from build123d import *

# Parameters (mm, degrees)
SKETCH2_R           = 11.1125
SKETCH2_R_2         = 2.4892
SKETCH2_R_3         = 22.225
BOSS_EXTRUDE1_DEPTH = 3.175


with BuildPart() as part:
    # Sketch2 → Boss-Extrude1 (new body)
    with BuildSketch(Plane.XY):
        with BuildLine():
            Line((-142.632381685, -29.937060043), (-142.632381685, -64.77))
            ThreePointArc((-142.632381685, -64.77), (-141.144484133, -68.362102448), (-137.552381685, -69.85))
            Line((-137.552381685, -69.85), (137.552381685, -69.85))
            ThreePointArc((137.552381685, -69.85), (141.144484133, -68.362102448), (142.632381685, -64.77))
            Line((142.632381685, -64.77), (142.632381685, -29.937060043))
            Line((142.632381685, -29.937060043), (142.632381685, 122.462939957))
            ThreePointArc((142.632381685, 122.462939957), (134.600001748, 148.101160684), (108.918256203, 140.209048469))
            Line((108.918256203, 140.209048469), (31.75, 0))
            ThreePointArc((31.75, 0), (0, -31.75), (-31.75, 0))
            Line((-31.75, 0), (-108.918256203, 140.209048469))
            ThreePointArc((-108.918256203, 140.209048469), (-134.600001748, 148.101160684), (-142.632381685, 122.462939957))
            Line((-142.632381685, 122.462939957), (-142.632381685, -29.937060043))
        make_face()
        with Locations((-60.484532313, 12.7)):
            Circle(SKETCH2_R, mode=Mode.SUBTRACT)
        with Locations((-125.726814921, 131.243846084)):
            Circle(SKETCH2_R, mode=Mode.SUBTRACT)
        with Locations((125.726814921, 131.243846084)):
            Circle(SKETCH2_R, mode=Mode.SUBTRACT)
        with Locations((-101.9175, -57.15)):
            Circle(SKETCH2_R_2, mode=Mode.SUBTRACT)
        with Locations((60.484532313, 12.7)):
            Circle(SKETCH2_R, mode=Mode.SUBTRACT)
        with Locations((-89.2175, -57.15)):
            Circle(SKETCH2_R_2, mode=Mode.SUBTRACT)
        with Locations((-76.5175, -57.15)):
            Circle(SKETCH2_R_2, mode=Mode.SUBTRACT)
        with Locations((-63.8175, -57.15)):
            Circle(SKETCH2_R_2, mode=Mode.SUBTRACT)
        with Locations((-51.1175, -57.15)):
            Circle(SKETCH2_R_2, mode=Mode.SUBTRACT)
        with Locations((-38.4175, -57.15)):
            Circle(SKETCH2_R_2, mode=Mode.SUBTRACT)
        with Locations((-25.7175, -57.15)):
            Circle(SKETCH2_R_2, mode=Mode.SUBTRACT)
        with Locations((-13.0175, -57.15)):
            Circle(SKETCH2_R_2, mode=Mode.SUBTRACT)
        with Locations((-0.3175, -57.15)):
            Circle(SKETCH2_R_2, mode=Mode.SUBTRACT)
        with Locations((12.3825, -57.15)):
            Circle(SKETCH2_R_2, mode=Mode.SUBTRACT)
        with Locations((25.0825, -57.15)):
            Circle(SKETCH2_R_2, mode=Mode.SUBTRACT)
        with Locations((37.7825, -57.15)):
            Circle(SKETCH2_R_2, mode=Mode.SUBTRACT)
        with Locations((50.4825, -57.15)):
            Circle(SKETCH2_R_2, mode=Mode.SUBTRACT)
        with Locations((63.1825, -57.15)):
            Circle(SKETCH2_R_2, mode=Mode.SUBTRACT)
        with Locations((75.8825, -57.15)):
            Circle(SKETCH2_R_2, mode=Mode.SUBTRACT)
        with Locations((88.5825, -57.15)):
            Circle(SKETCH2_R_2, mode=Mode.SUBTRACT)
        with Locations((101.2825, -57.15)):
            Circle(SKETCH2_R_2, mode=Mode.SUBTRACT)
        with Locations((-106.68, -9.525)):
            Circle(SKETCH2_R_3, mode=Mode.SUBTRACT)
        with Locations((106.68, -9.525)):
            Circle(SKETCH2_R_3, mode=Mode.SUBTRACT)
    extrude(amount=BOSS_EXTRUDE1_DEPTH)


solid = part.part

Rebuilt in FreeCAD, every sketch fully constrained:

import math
import FreeCAD as App
import Part
import Sketcher
from FreeCAD import Vector
Q = App.Units.Quantity

doc = App.newDocument("Part")
body = doc.addObject("PartDesign::Body", "Body")

# Sketch on XY plane
sketch1 = body.newObject("Sketcher::SketchObject", "Sketch")
sketch1.AttachmentSupport = (doc.getObject("XY_Plane"), [""])
sketch1.MapMode = "FlatFace"
sketch1.addGeometry(Part.ArcOfCircle(Part.Circle(Vector(-137.6, -64.8, 0), Vector(0, 0, 1), 5.1), math.radians(-180), math.radians(-90)), False)
sketch1.addGeometry(Part.LineSegment(Vector(-137.6, -69.8, 0), Vector(137.6, -69.8, 0)), False)
sketch1.addGeometry(Part.ArcOfCircle(Part.Circle(Vector(137.6, -64.8, 0), Vector(0, 0, 1), 5.1), math.radians(-90), math.radians(0)), False)
sketch1.addGeometry(Part.LineSegment(Vector(142.6, -64.8, 0), Vector(142.6, 122.5, 0)), False)
sketch1.addGeometry(Part.ArcOfCircle(Part.Circle(Vector(125.7, 131.2, 0), Vector(0, 0, 1), 19.1), math.radians(-27), math.radians(152)), False)
sketch1.addGeometry(Part.LineSegment(Vector(108.9, 140.2, 0), Vector(31.8, 0, 0)), False)
sketch1.addGeometry(Part.ArcOfCircle(Part.Circle(Vector(0, 0, 0), Vector(0, 0, 1), 31.8), math.radians(180), math.radians(360)), False)
sketch1.addGeometry(Part.LineSegment(Vector(-31.8, 0, 0), Vector(-108.9, 140.2, 0)), False)
sketch1.addGeometry(Part.ArcOfCircle(Part.Circle(Vector(-125.7, 131.2, 0), Vector(0, 0, 1), 19.1), math.radians(28), math.radians(207)), False)
sketch1.addGeometry(Part.LineSegment(Vector(-142.6, 122.5, 0), Vector(-142.6, -64.8, 0)), False)
sketch1.addGeometry(Part.Circle(Vector(-101.9, -57.1, 0), Vector(0, 0, 1), 2.5), False)
sketch1.addGeometry(Part.Circle(Vector(-89.2, -57.1, 0), Vector(0, 0, 1), 2.5), False)
sketch1.addGeometry(Part.Circle(Vector(-76.5, -57.1, 0), Vector(0, 0, 1), 2.5), False)
sketch1.addGeometry(Part.Circle(Vector(-106.7, -9.5, 0), Vector(0, 0, 1), 22.2), False)
sketch1.addGeometry(Part.Circle(Vector(-63.8, -57.1, 0), Vector(0, 0, 1), 2.5), False)
sketch1.addGeometry(Part.Circle(Vector(-51.1, -57.1, 0), Vector(0, 0, 1), 2.5), False)
sketch1.addGeometry(Part.Circle(Vector(-38.4, -57.1, 0), Vector(0, 0, 1), 2.5), False)
sketch1.addGeometry(Part.Circle(Vector(-25.7, -57.1, 0), Vector(0, 0, 1), 2.5), False)
sketch1.addGeometry(Part.Circle(Vector(-13, -57.1, 0), Vector(0, 0, 1), 2.5), False)
sketch1.addGeometry(Part.Circle(Vector(-0.3, -57.1, 0), Vector(0, 0, 1), 2.5), False)
sketch1.addGeometry(Part.Circle(Vector(-60.5, 12.7, 0), Vector(0, 0, 1), 11.1), False)
sketch1.addGeometry(Part.Circle(Vector(12.4, -57.1, 0), Vector(0, 0, 1), 2.5), False)
sketch1.addGeometry(Part.Circle(Vector(25.1, -57.1, 0), Vector(0, 0, 1), 2.5), False)
sketch1.addGeometry(Part.Circle(Vector(37.8, -57.1, 0), Vector(0, 0, 1), 2.5), False)
sketch1.addGeometry(Part.Circle(Vector(50.5, -57.1, 0), Vector(0, 0, 1), 2.5), False)
sketch1.addGeometry(Part.Circle(Vector(63.2, -57.1, 0), Vector(0, 0, 1), 2.5), False)
sketch1.addGeometry(Part.Circle(Vector(75.9, -57.1, 0), Vector(0, 0, 1), 2.5), False)
sketch1.addGeometry(Part.Circle(Vector(88.6, -57.1, 0), Vector(0, 0, 1), 2.5), False)
sketch1.addGeometry(Part.Circle(Vector(101.3, -57.1, 0), Vector(0, 0, 1), 2.5), False)
sketch1.addGeometry(Part.Circle(Vector(106.7, -9.5, 0), Vector(0, 0, 1), 22.2), False)
sketch1.addGeometry(Part.Circle(Vector(60.5, 12.7, 0), Vector(0, 0, 1), 11.1), False)
sketch1.addGeometry(Part.Circle(Vector(-125.7, 131.2, 0), Vector(0, 0, 1), 11.1), False)
sketch1.addGeometry(Part.Circle(Vector(125.7, 131.2, 0), Vector(0, 0, 1), 11.1), False)
sketch1.addConstraint(Sketcher.Constraint("Tangent", 0, 2, 1, 1))
sketch1.addConstraint(Sketcher.Constraint("Tangent", 1, 2, 2, 1))
sketch1.addConstraint(Sketcher.Constraint("Tangent", 2, 2, 3, 1))
sketch1.addConstraint(Sketcher.Constraint("Coincident", 3, 2, 4, 1))
sketch1.addConstraint(Sketcher.Constraint("Coincident", 4, 2, 5, 1))
sketch1.addConstraint(Sketcher.Constraint("Coincident", 5, 2, 6, 2))
sketch1.addConstraint(Sketcher.Constraint("Coincident", 6, 1, 7, 1))
sketch1.addConstraint(Sketcher.Constraint("Coincident", 7, 2, 8, 1))
sketch1.addConstraint(Sketcher.Constraint("Coincident", 8, 2, 9, 1))
sketch1.addConstraint(Sketcher.Constraint("Tangent", 9, 2, 0, 1))
sketch1.addConstraint(Sketcher.Constraint("Horizontal", 1))
sketch1.addConstraint(Sketcher.Constraint("Vertical", 3))
sketch1.addConstraint(Sketcher.Constraint("Vertical", 9))
sketch1.addConstraint(Sketcher.Constraint("Coincident", 6, 3, -1, 1))
sketch1.addConstraint(Sketcher.Constraint("Coincident", 31, 3, 8, 3))
sketch1.addConstraint(Sketcher.Constraint("Coincident", 32, 3, 4, 3))
sketch1.addConstraint(Sketcher.Constraint("Equal", 0, 2))
sketch1.addConstraint(Sketcher.Constraint("Equal", 4, 8))
sketch1.addConstraint(Sketcher.Constraint("Equal", 10, 11))
sketch1.addConstraint(Sketcher.Constraint("Equal", 11, 12))
sketch1.addConstraint(Sketcher.Constraint("Equal", 12, 14))
sketch1.addConstraint(Sketcher.Constraint("Equal", 14, 15))
sketch1.addConstraint(Sketcher.Constraint("Equal", 15, 16))
sketch1.addConstraint(Sketcher.Constraint("Equal", 16, 17))
sketch1.addConstraint(Sketcher.Constraint("Equal", 17, 18))
sketch1.addConstraint(Sketcher.Constraint("Equal", 18, 19))
sketch1.addConstraint(Sketcher.Constraint("Equal", 19, 21))
sketch1.addConstraint(Sketcher.Constraint("Equal", 21, 22))
sketch1.addConstraint(Sketcher.Constraint("Equal", 22, 23))
sketch1.addConstraint(Sketcher.Constraint("Equal", 23, 24))
sketch1.addConstraint(Sketcher.Constraint("Equal", 24, 25))
sketch1.addConstraint(Sketcher.Constraint("Equal", 25, 26))
sketch1.addConstraint(Sketcher.Constraint("Equal", 26, 27))
sketch1.addConstraint(Sketcher.Constraint("Equal", 27, 28))
sketch1.addConstraint(Sketcher.Constraint("Equal", 13, 29))
sketch1.addConstraint(Sketcher.Constraint("Equal", 20, 30))
sketch1.addConstraint(Sketcher.Constraint("Equal", 30, 31))
sketch1.addConstraint(Sketcher.Constraint("Equal", 31, 32))
sketch1.addConstraint(Sketcher.Constraint("Symmetric", 4, 3, 8, 3, -2))
sketch1.addConstraint(Sketcher.Constraint("Symmetric", 13, 3, 29, 3, -2))
sketch1.addConstraint(Sketcher.Constraint("Symmetric", 20, 3, 30, 3, -2))
sketch1.addConstraint(Sketcher.Constraint("PointOnObject", 5, 2, -1))
sketch1.addConstraint(Sketcher.Constraint("PointOnObject", 6, 1, -1))
sketch1.addConstraint(Sketcher.Constraint("Horizontal", 10, 3, 11, 3))
sketch1.addConstraint(Sketcher.Constraint("Horizontal", 11, 3, 12, 3))
sketch1.addConstraint(Sketcher.Constraint("Horizontal", 12, 3, 14, 3))
sketch1.addConstraint(Sketcher.Constraint("Horizontal", 14, 3, 15, 3))
sketch1.addConstraint(Sketcher.Constraint("Horizontal", 15, 3, 16, 3))
sketch1.addConstraint(Sketcher.Constraint("Horizontal", 16, 3, 17, 3))
sketch1.addConstraint(Sketcher.Constraint("Horizontal", 17, 3, 18, 3))
sketch1.addConstraint(Sketcher.Constraint("Horizontal", 18, 3, 19, 3))
sketch1.addConstraint(Sketcher.Constraint("Horizontal", 19, 3, 21, 3))
sketch1.addConstraint(Sketcher.Constraint("Horizontal", 21, 3, 22, 3))
sketch1.addConstraint(Sketcher.Constraint("Horizontal", 22, 3, 23, 3))
sketch1.addConstraint(Sketcher.Constraint("Horizontal", 23, 3, 24, 3))
sketch1.addConstraint(Sketcher.Constraint("Horizontal", 24, 3, 25, 3))
sketch1.addConstraint(Sketcher.Constraint("Horizontal", 25, 3, 26, 3))
sketch1.addConstraint(Sketcher.Constraint("Horizontal", 26, 3, 27, 3))
sketch1.addConstraint(Sketcher.Constraint("Horizontal", 27, 3, 28, 3))
sketch1.addConstraint(Sketcher.Constraint("Horizontal", 4, 2, 7, 2))
sketch1.addConstraint(Sketcher.Constraint("Horizontal", 3, 2, 8, 2))
sketch1.addConstraint(Sketcher.Constraint("Radius", 0, Q("0.2 in")))
sketch1.addConstraint(Sketcher.Constraint("Diameter", 13, Q("1.75 in")))
sketch1.addConstraint(Sketcher.Constraint("Radius", 4, Q("0.75 in")))
sketch1.addConstraint(Sketcher.Constraint("Radius", 6, Q("1.25 in")))
sketch1.addConstraint(Sketcher.Constraint("Diameter", 10, Q("0.196 in")))
sketch1.addConstraint(Sketcher.Constraint("Diameter", 20, Q("0.875 in")))
sketch1.addConstraint(Sketcher.Constraint("DistanceX", 10, 3, 12, 3, Q("1 in")))
sketch1.addConstraint(Sketcher.Constraint("DistanceX", 11, 3, 14, 3, Q("1 in")))
sketch1.addConstraint(Sketcher.Constraint("DistanceX", 12, 3, 15, 3, Q("1 in")))
sketch1.addConstraint(Sketcher.Constraint("DistanceX", 14, 3, 16, 3, Q("1 in")))
sketch1.addConstraint(Sketcher.Constraint("DistanceX", 15, 3, 17, 3, Q("1 in")))
sketch1.addConstraint(Sketcher.Constraint("DistanceX", 16, 3, 18, 3, Q("1 in")))
sketch1.addConstraint(Sketcher.Constraint("DistanceX", 17, 3, 19, 3, Q("1 in")))
sketch1.addConstraint(Sketcher.Constraint("DistanceX", 18, 3, 21, 3, Q("1 in")))
sketch1.addConstraint(Sketcher.Constraint("DistanceX", 19, 3, 22, 3, Q("1 in")))
sketch1.addConstraint(Sketcher.Constraint("DistanceX", 21, 3, 23, 3, Q("1 in")))
sketch1.addConstraint(Sketcher.Constraint("DistanceX", 22, 3, 24, 3, Q("1 in")))
sketch1.addConstraint(Sketcher.Constraint("DistanceX", 23, 3, 25, 3, Q("1 in")))
sketch1.addConstraint(Sketcher.Constraint("DistanceX", 24, 3, 26, 3, Q("1 in")))
sketch1.addConstraint(Sketcher.Constraint("DistanceX", 25, 3, 27, 3, Q("1 in")))
sketch1.addConstraint(Sketcher.Constraint("DistanceX", 26, 3, 28, 3, Q("1 in")))
sketch1.addConstraint(Sketcher.Constraint("DistanceX", 13, 3, -1, 1, Q("4.2 in")))
sketch1.addConstraint(Sketcher.Constraint("DistanceY", -1, 1, 20, 3, Q("0.5 in")))
sketch1.addConstraint(Sketcher.Constraint("DistanceY", 0, 3, 10, 3, Q("0.3 in")))
sketch1.addConstraint(Sketcher.Constraint("DistanceX", 10, 3, 11, 3, Q("0.5 in")))
sketch1.addConstraint(Sketcher.Constraint("DistanceY", 0, 3, -1, 1, Q("2.55 in")))
sketch1.addConstraint(Sketcher.Constraint("DistanceY", 13, 3, -1, 1, Q("0.375 in")))
sketch1.addConstraint(Sketcher.Constraint("DistanceX", 13, 3, 10, 3, Q("0.1875 in")))
sketch1.addConstraint(Sketcher.Constraint("DistanceY", 3, 1, 3, 2, Q("187.23294 mm")))
sketch1.addConstraint(Sketcher.Constraint("DistanceX", 1, 1, 1, 2, Q("275.104763 mm")))
sketch1.addConstraint(Sketcher.Constraint("DistanceY", -1, 1, 4, 2, Q("140.209048 mm")))
sketch1.addConstraint(Sketcher.Constraint("DistanceX", 8, 3, 4, 3, Q("251.45363 mm")))
sketch1.addConstraint(Sketcher.Constraint("DistanceX", 30, 3, 3, 2, Q("82.147849 mm")))
pad1 = body.newObject("PartDesign::Pad", "Pad")
pad1.Profile = sketch1
pad1.Length = Q("0.125 in")

doc.recompute()
